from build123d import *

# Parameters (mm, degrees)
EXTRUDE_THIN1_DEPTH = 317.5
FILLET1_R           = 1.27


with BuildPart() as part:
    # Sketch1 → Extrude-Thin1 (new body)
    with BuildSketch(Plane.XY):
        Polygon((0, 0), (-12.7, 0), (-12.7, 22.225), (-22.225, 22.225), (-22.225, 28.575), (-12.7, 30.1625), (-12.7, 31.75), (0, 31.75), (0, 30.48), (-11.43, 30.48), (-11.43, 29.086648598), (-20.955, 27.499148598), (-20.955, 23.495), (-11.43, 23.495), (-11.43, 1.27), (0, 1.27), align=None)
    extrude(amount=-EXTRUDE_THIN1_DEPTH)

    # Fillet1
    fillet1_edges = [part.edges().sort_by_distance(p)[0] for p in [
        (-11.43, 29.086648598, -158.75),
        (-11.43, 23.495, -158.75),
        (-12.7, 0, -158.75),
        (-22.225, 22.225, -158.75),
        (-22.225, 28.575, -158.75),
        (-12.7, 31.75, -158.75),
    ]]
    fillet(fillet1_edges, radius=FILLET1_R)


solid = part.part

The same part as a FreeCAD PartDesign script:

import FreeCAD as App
import Part
import Sketcher
from FreeCAD import Vector
Q = App.Units.Quantity


def edges_at(feature, points):
    """Names of the edges that pass closest to the given points."""
    edges = feature.Shape.Edges
    near = lambda p: min(range(len(edges)), key=lambda i: edges[i].distToShape(Part.Vertex(*p))[0])
    return sorted({f"Edge{near(p) + 1}" for p in points})

doc = App.newDocument("Part")
body = doc.addObject("PartDesign::Body", "Body")

sketch1 = body.newObject("Sketcher::SketchObject", "Sketch")
sketch1.AttachmentSupport = (doc.getObject("XY_Plane"), [""])
sketch1.MapMode = "FlatFace"
sketch1.addGeometry(Part.LineSegment(Vector(-12.7, 0, 0), Vector(0, 0, 0)), False)
sketch1.addGeometry(Part.LineSegment(Vector(0, 0, 0), Vector(0, 1.27, 0)), False)
sketch1.addGeometry(Part.LineSegment(Vector(0, 1.27, 0), Vector(-11.43, 1.27, 0)), False)
sketch1.addGeometry(Part.LineSegment(Vector(-11.43, 1.27, 0), Vector(-11.43, 23.495, 0)), False)
sketch1.addGeometry(Part.LineSegment(Vector(-11.43, 23.495, 0), Vector(-20.955, 23.495, 0)), False)
sketch1.addGeometry(Part.LineSegment(Vector(-20.955, 23.495, 0), Vector(-20.955, 27.499149, 0)), False)
sketch1.addGeometry(Part.LineSegment(Vector(-20.955, 27.499149, 0), Vector(-11.43, 29.086649, 0)), False)
sketch1.addGeometry(Part.LineSegment(Vector(-11.43, 29.086649, 0), Vector(-11.43, 30.48, 0)), False)
sketch1.addGeometry(Part.LineSegment(Vector(-11.43, 30.48, 0), Vector(0, 30.48, 0)), False)
sketch1.addGeometry(Part.LineSegment(Vector(0, 30.48, 0), Vector(0, 31.75, 0)), False)
sketch1.addGeometry(Part.LineSegment(Vector(0, 31.75, 0), Vector(-12.7, 31.75, 0)), False)
sketch1.addGeometry(Part.LineSegment(Vector(-12.7, 31.75, 0), Vector(-12.7, 30.1625, 0)), False)
sketch1.addGeometry(Part.LineSegment(Vector(-12.7, 30.1625, 0), Vector(-22.225, 28.575, 0)), False)
sketch1.addGeometry(Part.LineSegment(Vector(-22.225, 28.575, 0), Vector(-22.225, 22.225, 0)), False)
sketch1.addGeometry(Part.LineSegment(Vector(-22.225, 22.225, 0), Vector(-12.7, 22.225, 0)), False)
sketch1.addGeometry(Part.LineSegment(Vector(-12.7, 22.225, 0), Vector(-12.7, 0, 0)), False)
sketch1.addConstraint(Sketcher.Constraint("Coincident", 0, 2, 1, 1))
sketch1.addConstraint(Sketcher.Constraint("Coincident", 1, 2, 2, 1))
sketch1.addConstraint(Sketcher.Constraint("Coincident", 2, 2, 3, 1))
sketch1.addConstraint(Sketcher.Constraint("Coincident", 3, 2, 4, 1))
sketch1.addConstraint(Sketcher.Constraint("Coincident", 4, 2, 5, 1))
sketch1.addConstraint(Sketcher.Constraint("Coincident", 5, 2, 6, 1))
sketch1.addConstraint(Sketcher.Constraint("Coincident", 6, 2, 7, 1))
sketch1.addConstraint(Sketcher.Constraint("Coincident", 7, 2, 8, 1))
sketch1.addConstraint(Sketcher.Constraint("Coincident", 8, 2, 9, 1))
sketch1.addConstraint(Sketcher.Constraint("Coincident", 9, 2, 10, 1))
sketch1.addConstraint(Sketcher.Constraint("Coincident", 10, 2, 11, 1))
sketch1.addConstraint(Sketcher.Constraint("Coincident", 11, 2, 12, 1))
sketch1.addConstraint(Sketcher.Constraint("Coincident", 12, 2, 13, 1))
sketch1.addConstraint(Sketcher.Constraint("Coincident", 13, 2, 14, 1))
sketch1.addConstraint(Sketcher.Constraint("Coincident", 14, 2, 15, 1))
sketch1.addConstraint(Sketcher.Constraint("Coincident", 15, 2, 0, 1))
sketch1.addConstraint(Sketcher.Constraint("Horizontal", 0))
sketch1.addConstraint(Sketcher.Constraint("Vertical", 1))
sketch1.addConstraint(Sketcher.Constraint("Horizontal", 2))
sketch1.addConstraint(Sketcher.Constraint("Vertical", 3))
sketch1.addConstraint(Sketcher.Constraint("Horizontal", 4))
sketch1.addConstraint(Sketcher.Constraint("Vertical", 5))
sketch1.addConstraint(Sketcher.Constraint("Vertical", 7))
sketch1.addConstraint(Sketcher.Constraint("Horizontal", 8))
sketch1.addConstraint(Sketcher.Constraint("Vertical", 9))
sketch1.addConstraint(Sketcher.Constraint("Horizontal", 10))
sketch1.addConstraint(Sketcher.Constraint("Vertical", 11))
sketch1.addConstraint(Sketcher.Constraint("Vertical", 13))
sketch1.addConstraint(Sketcher.Constraint("Horizontal", 14))
sketch1.addConstraint(Sketcher.Constraint("Vertical", 15))
sketch1.addConstraint(Sketcher.Constraint("Coincident", 0, 2, -1, 1))
sketch1.addConstraint(Sketcher.Constraint("PointOnObject", 8, 2, -2))
sketch1.addConstraint(Sketcher.Constraint("Parallel", 6, 12))
sketch1.addConstraint(Sketcher.Constraint("Vertical", 3, 2, 6, 2))
sketch1.addConstraint(Sketcher.Constraint("Vertical", 11, 2, 14, 2))
sketch1.addConstraint(Sketcher.Constraint("Equal", 4, 14))
sketch1.addConstraint(Sketcher.Constraint("Equal", 1, 9))
sketch1.addConstraint(Sketcher.Constraint("Equal", 3, 15))
sketch1.addConstraint(Sketcher.Constraint("DistanceX", 0, 1, 0, 2, Q("0.5 in")))
sketch1.addConstraint(Sketcher.Constraint("DistanceX", 2, 2, 2, 1, Q("0.45 in")))
sketch1.addConstraint(Sketcher.Constraint("DistanceY", 1, 1, 1, 2, Q("0.05 in")))
sketch1.addConstraint(Sketcher.Constraint("DistanceY", 13, 2, 13, 1, Q("0.25 in")))
sketch1.addConstraint(Sketcher.Constraint("DistanceY", -1, 1, 7, 2, Q("1.2 in")))
sketch1.addConstraint(Sketcher.Constraint("DistanceX", 4, 2, 4, 1, Q("0.375 in")))
sketch1.addConstraint(Sketcher.Constraint("DistanceY", 3, 1, 3, 2, Q("0.875 in")))
sketch1.addConstraint(Sketcher.Constraint("DistanceY", 11, 2, 11, 1, Q("0.0625 in")))
sketch1.addConstraint(Sketcher.Constraint("DistanceY", 5, 1, 5, 2, Q("4.004149 mm")))
pad1 = body.newObject("PartDesign::Pad", "Pad")
pad1.Profile = sketch1
pad1.Length = Q("12.5 in")
pad1.Reversed = True
doc.recompute()

fillet = body.newObject("PartDesign::Fillet", "Fillet")
fillet.Base = (pad1, edges_at(pad1, [
    (-11.43, 29.087, -158.75),
    (-11.43, 23.495, -158.75),
    (-12.7, 0, -158.75),
    (-22.225, 22.225, -158.75),
    (-22.225, 28.575, -158.75),
    (-12.7, 31.75, -158.75),
]))
fillet.Radius = Q("0.05 in")

doc.recompute()
